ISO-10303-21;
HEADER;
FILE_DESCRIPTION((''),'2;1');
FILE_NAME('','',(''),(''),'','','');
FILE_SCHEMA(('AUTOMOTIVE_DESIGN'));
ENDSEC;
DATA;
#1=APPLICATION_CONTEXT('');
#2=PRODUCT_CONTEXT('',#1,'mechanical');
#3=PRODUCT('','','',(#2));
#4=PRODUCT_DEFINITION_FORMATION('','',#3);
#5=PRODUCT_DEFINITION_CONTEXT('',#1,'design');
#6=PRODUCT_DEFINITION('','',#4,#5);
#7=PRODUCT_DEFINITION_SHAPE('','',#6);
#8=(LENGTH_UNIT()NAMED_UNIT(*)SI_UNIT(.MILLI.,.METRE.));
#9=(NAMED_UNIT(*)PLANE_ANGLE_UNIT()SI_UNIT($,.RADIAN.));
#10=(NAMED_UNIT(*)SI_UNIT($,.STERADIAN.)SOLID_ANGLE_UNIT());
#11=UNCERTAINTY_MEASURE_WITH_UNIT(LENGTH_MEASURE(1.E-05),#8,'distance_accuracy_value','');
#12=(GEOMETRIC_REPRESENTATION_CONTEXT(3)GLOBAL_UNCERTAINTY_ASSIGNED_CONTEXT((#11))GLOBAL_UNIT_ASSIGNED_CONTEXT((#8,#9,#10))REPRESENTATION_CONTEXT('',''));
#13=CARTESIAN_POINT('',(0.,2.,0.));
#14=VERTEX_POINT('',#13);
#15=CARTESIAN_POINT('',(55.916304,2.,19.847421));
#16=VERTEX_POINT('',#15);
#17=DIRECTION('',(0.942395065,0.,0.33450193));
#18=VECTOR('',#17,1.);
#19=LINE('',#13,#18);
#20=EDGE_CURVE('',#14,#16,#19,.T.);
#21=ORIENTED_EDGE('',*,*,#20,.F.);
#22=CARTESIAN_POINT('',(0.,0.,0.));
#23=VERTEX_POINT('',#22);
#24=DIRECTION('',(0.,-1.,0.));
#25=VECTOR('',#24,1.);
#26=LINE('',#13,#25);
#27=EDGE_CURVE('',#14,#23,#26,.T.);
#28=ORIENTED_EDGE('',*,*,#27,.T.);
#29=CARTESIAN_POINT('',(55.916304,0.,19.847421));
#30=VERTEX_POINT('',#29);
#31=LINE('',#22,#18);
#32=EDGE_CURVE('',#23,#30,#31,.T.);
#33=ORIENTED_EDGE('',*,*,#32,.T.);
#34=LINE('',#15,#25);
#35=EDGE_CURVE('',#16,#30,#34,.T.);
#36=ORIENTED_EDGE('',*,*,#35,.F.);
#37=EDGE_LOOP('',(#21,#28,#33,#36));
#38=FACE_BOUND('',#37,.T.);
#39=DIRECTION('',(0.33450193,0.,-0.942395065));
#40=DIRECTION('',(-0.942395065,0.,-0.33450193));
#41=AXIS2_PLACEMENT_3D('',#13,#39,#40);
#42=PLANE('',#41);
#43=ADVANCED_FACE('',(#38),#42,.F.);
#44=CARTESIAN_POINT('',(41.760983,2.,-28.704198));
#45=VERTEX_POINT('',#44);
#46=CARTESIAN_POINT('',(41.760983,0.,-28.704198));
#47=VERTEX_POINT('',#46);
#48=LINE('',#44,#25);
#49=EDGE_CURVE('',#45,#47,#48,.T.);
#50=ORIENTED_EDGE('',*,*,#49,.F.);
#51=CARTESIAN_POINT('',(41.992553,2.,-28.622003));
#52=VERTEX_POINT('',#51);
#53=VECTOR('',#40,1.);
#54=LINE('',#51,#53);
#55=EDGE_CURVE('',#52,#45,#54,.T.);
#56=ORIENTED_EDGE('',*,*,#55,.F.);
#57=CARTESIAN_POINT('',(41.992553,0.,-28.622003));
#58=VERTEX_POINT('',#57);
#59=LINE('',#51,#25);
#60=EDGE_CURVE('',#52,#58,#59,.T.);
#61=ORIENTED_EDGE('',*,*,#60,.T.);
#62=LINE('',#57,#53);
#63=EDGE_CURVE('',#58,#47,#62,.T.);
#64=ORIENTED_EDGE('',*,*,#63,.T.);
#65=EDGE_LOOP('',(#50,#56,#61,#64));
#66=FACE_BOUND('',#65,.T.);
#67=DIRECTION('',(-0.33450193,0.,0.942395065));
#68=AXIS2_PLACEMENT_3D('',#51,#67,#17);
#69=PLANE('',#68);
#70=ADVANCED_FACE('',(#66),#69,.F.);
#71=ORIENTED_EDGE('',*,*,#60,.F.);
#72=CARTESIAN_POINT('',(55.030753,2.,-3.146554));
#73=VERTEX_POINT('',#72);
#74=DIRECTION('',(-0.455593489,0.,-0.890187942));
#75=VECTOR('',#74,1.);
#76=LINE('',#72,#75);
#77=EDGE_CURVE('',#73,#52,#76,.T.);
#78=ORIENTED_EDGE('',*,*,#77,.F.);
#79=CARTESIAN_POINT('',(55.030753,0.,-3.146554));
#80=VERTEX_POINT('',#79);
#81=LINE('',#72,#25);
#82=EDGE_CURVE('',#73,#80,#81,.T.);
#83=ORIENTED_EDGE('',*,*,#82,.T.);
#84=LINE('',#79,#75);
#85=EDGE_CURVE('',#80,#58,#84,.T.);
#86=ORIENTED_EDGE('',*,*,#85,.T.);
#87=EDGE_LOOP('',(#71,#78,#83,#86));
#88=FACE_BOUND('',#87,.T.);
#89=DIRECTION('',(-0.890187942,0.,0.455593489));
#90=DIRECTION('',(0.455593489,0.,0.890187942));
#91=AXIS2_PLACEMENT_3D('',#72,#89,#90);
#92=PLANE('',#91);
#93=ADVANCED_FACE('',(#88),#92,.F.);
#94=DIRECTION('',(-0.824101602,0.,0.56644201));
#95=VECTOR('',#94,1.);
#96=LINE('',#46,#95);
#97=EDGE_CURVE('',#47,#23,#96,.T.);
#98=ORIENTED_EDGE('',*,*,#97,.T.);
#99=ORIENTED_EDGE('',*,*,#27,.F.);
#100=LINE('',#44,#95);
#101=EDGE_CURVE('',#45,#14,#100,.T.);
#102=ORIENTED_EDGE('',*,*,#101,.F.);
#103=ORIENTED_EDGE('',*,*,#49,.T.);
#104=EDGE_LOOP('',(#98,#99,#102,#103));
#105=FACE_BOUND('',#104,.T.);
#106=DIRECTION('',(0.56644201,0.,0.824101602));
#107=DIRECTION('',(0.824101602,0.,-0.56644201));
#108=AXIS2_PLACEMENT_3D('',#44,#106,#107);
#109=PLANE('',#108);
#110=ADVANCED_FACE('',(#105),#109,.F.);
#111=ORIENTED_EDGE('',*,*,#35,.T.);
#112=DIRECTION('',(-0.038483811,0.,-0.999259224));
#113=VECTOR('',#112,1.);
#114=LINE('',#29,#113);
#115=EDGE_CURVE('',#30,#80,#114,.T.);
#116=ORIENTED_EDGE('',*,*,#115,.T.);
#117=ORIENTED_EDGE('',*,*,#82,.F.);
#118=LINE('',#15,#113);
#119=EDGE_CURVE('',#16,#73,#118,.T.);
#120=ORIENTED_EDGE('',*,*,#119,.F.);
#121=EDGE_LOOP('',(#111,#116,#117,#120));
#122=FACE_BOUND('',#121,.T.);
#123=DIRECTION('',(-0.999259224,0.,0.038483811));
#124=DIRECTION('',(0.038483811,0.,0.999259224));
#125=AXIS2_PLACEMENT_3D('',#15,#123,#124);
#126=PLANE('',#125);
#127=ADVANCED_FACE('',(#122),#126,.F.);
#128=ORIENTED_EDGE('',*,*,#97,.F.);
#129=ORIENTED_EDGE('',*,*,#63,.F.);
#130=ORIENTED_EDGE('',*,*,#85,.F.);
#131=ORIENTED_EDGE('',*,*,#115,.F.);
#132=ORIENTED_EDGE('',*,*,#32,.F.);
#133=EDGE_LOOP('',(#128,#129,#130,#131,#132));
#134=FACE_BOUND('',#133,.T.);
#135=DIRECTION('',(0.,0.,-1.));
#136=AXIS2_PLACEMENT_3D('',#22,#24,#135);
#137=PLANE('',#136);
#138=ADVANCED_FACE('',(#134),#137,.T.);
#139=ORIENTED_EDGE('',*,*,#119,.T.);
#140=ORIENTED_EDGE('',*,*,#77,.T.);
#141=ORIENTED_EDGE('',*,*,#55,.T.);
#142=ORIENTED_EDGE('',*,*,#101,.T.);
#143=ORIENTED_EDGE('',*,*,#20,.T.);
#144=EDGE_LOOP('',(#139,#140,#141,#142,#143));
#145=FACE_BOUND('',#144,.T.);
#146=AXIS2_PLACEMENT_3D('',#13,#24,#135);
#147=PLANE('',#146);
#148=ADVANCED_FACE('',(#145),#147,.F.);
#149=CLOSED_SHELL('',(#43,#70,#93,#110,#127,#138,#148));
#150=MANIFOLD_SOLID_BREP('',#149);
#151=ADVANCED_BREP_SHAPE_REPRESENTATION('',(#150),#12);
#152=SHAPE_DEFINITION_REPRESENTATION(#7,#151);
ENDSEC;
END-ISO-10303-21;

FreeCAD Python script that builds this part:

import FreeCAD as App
import Part
import Sketcher

V = App.Vector
Q = App.Units.Quantity


def add_polygon(sketch, points):
    """Adds a closed chain of lines whose ends are joined by coincident constraints."""
    first, n = sketch.GeometryCount, len(points)
    for a, b in zip(points, points[1:] + points[:1]):
        sketch.addGeometry(Part.LineSegment(App.Vector(*a, 0), App.Vector(*b, 0)), False)
    for i in range(n):
        sketch.addConstraint(Sketcher.Constraint("Coincident", first + i, 2, first + (i + 1) % n, 1))

doc = App.newDocument("Part")
body = doc.addObject("PartDesign::Body", "Body")

# Sketch on XZ plane
sketch1 = body.newObject("Sketcher::SketchObject", "Sketch")
sketch1.AttachmentSupport = (doc.getObject("XZ_Plane"), [""])
sketch1.MapMode = "FlatFace"
add_polygon(sketch1, [(41.760983, -28.704198), (0, 0), (55.916304, 19.847421), (55.030753, -3.146554), (41.992553, -28.622003)])  # lines 0-4
sketch1.addConstraint(Sketcher.Constraint("Coincident", 0, 2, -1, 1))
sketch1.addConstraint(Sketcher.Constraint("Parallel", 1, 4))
sketch1.addConstraint(Sketcher.Constraint("DistanceX", 3, 2, 2, 2, Q("13.0382 mm")))
sketch1.addConstraint(Sketcher.Constraint("Distance", 1, Q("59.33425 mm")))
sketch1.addConstraint(Sketcher.Constraint("Distance", 2, Q("23.011021 mm")))
sketch1.addConstraint(Sketcher.Constraint("DistanceY", -1, 1, 1, 2, Q("19.847421 mm")))
sketch1.addConstraint(Sketcher.Constraint("DistanceX", 2, 2, 1, 2, Q("0.885552 mm")))
sketch1.addConstraint(Sketcher.Constraint("DistanceY", 3, 2, 2, 2, Q("25.475449 mm")))
sketch1.addConstraint(Sketcher.Constraint("DistanceX", 4, 2, 3, 2, Q("0.231569 mm")))
pad1 = body.newObject("PartDesign::Pad", "Pad")
pad1.Profile = sketch1
pad1.Length = 2
pad1.Reversed = True

doc.recompute()
